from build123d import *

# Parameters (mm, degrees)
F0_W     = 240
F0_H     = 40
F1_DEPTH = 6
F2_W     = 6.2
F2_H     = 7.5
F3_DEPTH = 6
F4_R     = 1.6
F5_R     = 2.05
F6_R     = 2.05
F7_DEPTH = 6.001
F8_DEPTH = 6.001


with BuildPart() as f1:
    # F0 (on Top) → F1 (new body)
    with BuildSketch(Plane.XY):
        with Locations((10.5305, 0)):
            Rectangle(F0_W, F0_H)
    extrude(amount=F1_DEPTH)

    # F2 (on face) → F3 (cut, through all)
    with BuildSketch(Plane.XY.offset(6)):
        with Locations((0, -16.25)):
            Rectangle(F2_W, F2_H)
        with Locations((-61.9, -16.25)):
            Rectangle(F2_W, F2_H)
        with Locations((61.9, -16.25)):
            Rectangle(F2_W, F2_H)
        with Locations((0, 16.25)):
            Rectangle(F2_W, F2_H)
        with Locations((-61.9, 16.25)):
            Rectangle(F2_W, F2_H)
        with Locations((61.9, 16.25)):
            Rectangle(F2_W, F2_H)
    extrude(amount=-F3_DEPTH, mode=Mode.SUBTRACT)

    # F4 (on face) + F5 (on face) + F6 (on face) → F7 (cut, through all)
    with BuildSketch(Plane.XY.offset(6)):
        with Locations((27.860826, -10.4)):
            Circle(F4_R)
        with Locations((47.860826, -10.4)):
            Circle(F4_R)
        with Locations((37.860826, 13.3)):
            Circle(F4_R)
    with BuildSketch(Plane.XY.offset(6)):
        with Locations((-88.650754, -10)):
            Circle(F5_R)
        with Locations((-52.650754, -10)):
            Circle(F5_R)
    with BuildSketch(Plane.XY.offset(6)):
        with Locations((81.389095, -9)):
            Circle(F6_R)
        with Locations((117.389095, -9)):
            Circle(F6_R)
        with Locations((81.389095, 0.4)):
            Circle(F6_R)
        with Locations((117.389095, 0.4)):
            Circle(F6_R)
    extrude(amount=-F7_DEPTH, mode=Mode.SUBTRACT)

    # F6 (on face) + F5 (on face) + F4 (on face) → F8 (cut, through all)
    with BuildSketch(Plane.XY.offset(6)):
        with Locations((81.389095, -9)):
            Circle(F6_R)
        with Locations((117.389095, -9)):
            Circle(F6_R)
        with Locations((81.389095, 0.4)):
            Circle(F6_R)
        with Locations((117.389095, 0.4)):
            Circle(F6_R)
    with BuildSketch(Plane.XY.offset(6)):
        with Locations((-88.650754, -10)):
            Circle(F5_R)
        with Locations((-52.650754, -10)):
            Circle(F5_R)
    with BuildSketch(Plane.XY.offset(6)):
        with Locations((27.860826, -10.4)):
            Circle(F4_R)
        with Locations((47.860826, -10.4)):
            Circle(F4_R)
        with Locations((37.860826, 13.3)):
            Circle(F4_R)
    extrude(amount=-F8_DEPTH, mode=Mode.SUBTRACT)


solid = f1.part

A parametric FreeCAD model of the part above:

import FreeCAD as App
import Part
import Sketcher
from FreeCAD import Vector
Q = App.Units.Quantity


def add_polygon(sketch, points):
    """Adds a closed chain of lines whose ends are joined by coincident constraints."""
    first, n = sketch.GeometryCount, len(points)
    for a, b in zip(points, points[1:] + points[:1]):
        sketch.addGeometry(Part.LineSegment(App.Vector(*a, 0), App.Vector(*b, 0)), False)
    for i in range(n):
        sketch.addConstraint(Sketcher.Constraint("Coincident", first + i, 2, first + (i + 1) % n, 1))

doc = App.newDocument("Part")
body = doc.addObject("PartDesign::Body", "Body")

sketch1 = body.newObject("Sketcher::SketchObject", "Sketch")
sketch1.AttachmentSupport = (doc.getObject("XY_Plane"), [""])
sketch1.MapMode = "FlatFace"
add_polygon(sketch1, [(-109, 20), (-109, -20), (131, -20), (131, 20)])
sketch1.addConstraint([
    Sketcher.Constraint("Vertical", 0),
    Sketcher.Constraint("Horizontal", 1),
    Sketcher.Constraint("Vertical", 2),
    Sketcher.Constraint("Horizontal", 3),
    Sketcher.Constraint("DistanceX", 1, 1, 1, 2, Q("240 mm")),
    Sketcher.Constraint("DistanceY", 0, 2, 0, 1, Q("40 mm")),
    Sketcher.Constraint("DistanceY", 0, 2, -1, 1, Q("20 mm")),
    Sketcher.Constraint("DistanceX", 0, 2, -1, 1, Q("109.4695 mm")),
])
pad1 = body.newObject("PartDesign::Pad", "Pad")
pad1.Profile = sketch1
pad1.Length = 6

sketch2 = body.newObject("Sketcher::SketchObject", "Sketch001")
sketch2.AttachmentSupport = (doc.getObject("XY_Plane"), [""])
sketch2.MapMode = "FlatFace"
sketch2.AttachmentOffset = App.Placement(Vector(0, 0, 6), App.Rotation())
add_polygon(sketch2, [(-3, -12), (-3, -20), (3, -20), (3, -12)])
add_polygon(sketch2, [(-65, -12), (-65, -20), (-59, -20), (-59, -12)])
add_polygon(sketch2, [(59, -12), (59, -20), (65, -20), (65, -12)])
add_polygon(sketch2, [(-3, 20), (-3, 12), (3, 12), (3, 20)])
add_polygon(sketch2, [(-65, 20), (-65, 12), (-59, 12), (-59, 20)])
add_polygon(sketch2, [(59, 20), (59, 12), (65, 12), (65, 20)])
sketch2.addConstraint([
    Sketcher.Constraint("Vertical", 0),
    Sketcher.Constraint("Horizontal", 1),
    Sketcher.Constraint("Vertical", 2),
    Sketcher.Constraint("Horizontal", 3),
    Sketcher.Constraint("Vertical", 4),
    Sketcher.Constraint("Horizontal", 5),
    Sketcher.Constraint("Vertical", 6),
    Sketcher.Constraint("Horizontal", 7),
    Sketcher.Constraint("Vertical", 8),
    Sketcher.Constraint("Horizontal", 9),
    Sketcher.Constraint("Vertical", 10),
    Sketcher.Constraint("Horizontal", 11),
    Sketcher.Constraint("Vertical", 12),
    Sketcher.Constraint("Horizontal", 13),
    Sketcher.Constraint("Vertical", 14),
    Sketcher.Constraint("Horizontal", 15),
    Sketcher.Constraint("Vertical", 16),
    Sketcher.Constraint("Horizontal", 17),
    Sketcher.Constraint("Vertical", 18),
    Sketcher.Constraint("Horizontal", 19),
    Sketcher.Constraint("Vertical", 20),
    Sketcher.Constraint("Horizontal", 21),
    Sketcher.Constraint("Vertical", 22),
    Sketcher.Constraint("Horizontal", 23),
    Sketcher.Constraint("Symmetric", 2, 2, 12, 2, -1, 1),
    Sketcher.Constraint("Symmetric", 0, 2, 14, 2, -1, 1),
    Sketcher.Constraint("Symmetric", 10, 2, 16, 2, -1, 1),
    Sketcher.Constraint("Symmetric", 8, 2, 18, 2, -1, 1),
    Sketcher.Constraint("Symmetric", 6, 2, 20, 2, -1, 1),
    Sketcher.Constraint("Symmetric", 4, 2, 22, 2, -1, 1),
    Sketcher.Constraint("Symmetric", 5, 2, 8, 2, -2),
    Sketcher.Constraint("Symmetric", 7, 2, 10, 2, -2),
    Sketcher.Constraint("Horizontal", 1, 2, 4, 2),
    Sketcher.Constraint("Horizontal", 3, 2, 6, 2),
    Sketcher.Constraint("Vertical", 3, 2, 12, 2),
    Sketcher.Constraint("Equal", 3, 5),
    Sketcher.Constraint("DistanceX", 1, 1, 1, 2, Q("6.2 mm")),
    Sketcher.Constraint("DistanceY", 0, 2, 0, 1, Q("7.5 mm")),
    Sketcher.Constraint("DistanceY", 0, 2, -1, 1, Q("20 mm")),
    Sketcher.Constraint("DistanceX", 4, 2, -1, 1, Q("65 mm")),
])
pocket1 = body.newObject("PartDesign::Pocket", "Pocket")
pocket1.Profile = sketch2
pocket1.Type = "ThroughAll"

sketch3 = body.newObject("Sketcher::SketchObject", "Sketch002")
sketch3.AttachmentSupport = (doc.getObject("XY_Plane"), [""])
sketch3.MapMode = "FlatFace"
sketch3.AttachmentOffset = App.Placement(Vector(0, 0, 6), App.Rotation())
sketch3.addGeometry([
    Part.Circle(Vector(27.9, -10.4, 0), Vector(0, 0, 1), 1.6),
    Part.Circle(Vector(47.9, -10.4, 0), Vector(0, 0, 1), 1.6),
    Part.Circle(Vector(37.9, 13.3, 0), Vector(0, 0, 1), 1.6),
    Part.Circle(Vector(-88.7, -10, 0), Vector(0, 0, 1), 2),
    Part.Circle(Vector(-52.7, -10, 0), Vector(0, 0, 1), 2),
    Part.Circle(Vector(81.4, -9, 0), Vector(0, 0, 1), 2),
    Part.Circle(Vector(117.4, -9, 0), Vector(0, 0, 1), 2),
    Part.Circle(Vector(81.4, 0.4, 0), Vector(0, 0, 1), 2),
    Part.Circle(Vector(117.4, 0.4, 0), Vector(0, 0, 1), 2),
], False)
sketch3.addConstraint([
    Sketcher.Constraint("Equal", 0, 1),
    Sketcher.Constraint("Equal", 1, 2),
    Sketcher.Constraint("Equal", 3, 4),
    Sketcher.Constraint("Equal", 4, 5),
    Sketcher.Constraint("Equal", 5, 6),
    Sketcher.Constraint("Equal", 6, 7),
    Sketcher.Constraint("Equal", 7, 8),
    Sketcher.Constraint("Horizontal", 0, 3, 1, 3),
    Sketcher.Constraint("Horizontal", 3, 3, 4, 3),
    Sketcher.Constraint("Horizontal", 5, 3, 6, 3),
    Sketcher.Constraint("Horizontal", 7, 3, 8, 3),
    Sketcher.Constraint("Vertical", 5, 3, 7, 3),
    Sketcher.Constraint("Vertical", 6, 3, 8, 3),
    Sketcher.Constraint("Diameter", 0, Q("3.2 mm")),
    Sketcher.Constraint("Diameter", 3, Q("4.1 mm")),
    Sketcher.Constraint("DistanceY", 3, 3, -1, 1, Q("10 mm")),
    Sketcher.Constraint("DistanceY", 5, 3, -1, 1, Q("9 mm")),
    Sketcher.Constraint("DistanceX", 0, 3, 1, 3, Q("20 mm")),
    Sketcher.Constraint("DistanceX", 0, 3, 2, 3, Q("10 mm")),
    Sketcher.Constraint("DistanceX", 3, 3, 4, 3, Q("36 mm")),
    Sketcher.Constraint("DistanceX", 5, 3, 6, 3, Q("36 mm")),
    Sketcher.Constraint("DistanceY", 0, 3, -1, 1, Q("10.4 mm")),
    Sketcher.Constraint("DistanceY", -1, 1, 2, 3, Q("13.3 mm")),
    Sketcher.Constraint("DistanceY", -1, 1, 7, 3, Q("0.4 mm")),
    Sketcher.Constraint("DistanceX", 3, 3, 0, 3, Q("116.51158 mm")),
    Sketcher.Constraint("DistanceX", 1, 3, 5, 3, Q("33.528269 mm")),
    Sketcher.Constraint("DistanceX", -1, 1, 0, 3, Q("27.860826 mm")),
])
pocket2 = body.newObject("PartDesign::Pocket", "Pocket001")
pocket2.Profile = sketch3
pocket2.Type = "ThroughAll"

sketch4 = body.newObject("Sketcher::SketchObject", "Sketch003")
sketch4.AttachmentSupport = (doc.getObject("XY_Plane"), [""])
sketch4.MapMode = "FlatFace"
sketch4.AttachmentOffset = App.Placement(Vector(0, 0, 6), App.Rotation())
sketch4.addGeometry([
    Part.Circle(Vector(81.4, -9, 0), Vector(0, 0, 1), 2),
    Part.Circle(Vector(117.4, -9, 0), Vector(0, 0, 1), 2),
    Part.Circle(Vector(81.4, 0.4, 0), Vector(0, 0, 1), 2),
    Part.Circle(Vector(117.4, 0.4, 0), Vector(0, 0, 1), 2),
    Part.Circle(Vector(-88.7, -10, 0), Vector(0, 0, 1), 2),
    Part.Circle(Vector(-52.7, -10, 0), Vector(0, 0, 1), 2),
    Part.Circle(Vector(27.9, -10.4, 0), Vector(0, 0, 1), 1.6),
    Part.Circle(Vector(47.9, -10.4, 0), Vector(0, 0, 1), 1.6),
    Part.Circle(Vector(37.9, 13.3, 0), Vector(0, 0, 1), 1.6),
], False)
sketch4.addConstraint([
    Sketcher.Constraint("Equal", 0, 1),
    Sketcher.Constraint("Equal", 1, 2),
    Sketcher.Constraint("Equal", 2, 3),
    Sketcher.Constraint("Equal", 3, 4),
    Sketcher.Constraint("Equal", 4, 5),
    Sketcher.Constraint("Equal", 6, 7),
    Sketcher.Constraint("Equal", 7, 8),
    Sketcher.Constraint("Horizontal", 0, 3, 1, 3),
    Sketcher.Constraint("Horizontal", 2, 3, 3, 3),
    Sketcher.Constraint("Horizontal", 4, 3, 5, 3),
    Sketcher.Constraint("Horizontal", 6, 3, 7, 3),
    Sketcher.Constraint("Vertical", 0, 3, 2, 3),
    Sketcher.Constraint("Vertical", 1, 3, 3, 3),
    Sketcher.Constraint("Diameter", 0, Q("4.1 mm")),
    Sketcher.Constraint("Diameter", 6, Q("3.2 mm")),
    Sketcher.Constraint("DistanceY", 0, 3, -1, 1, Q("9 mm")),
    Sketcher.Constraint("DistanceY", 4, 3, -1, 1, Q("10 mm")),
    Sketcher.Constraint("DistanceX", 0, 3, 1, 3, Q("36 mm")),
    Sketcher.Constraint("DistanceX", 4, 3, 5, 3, Q("36 mm")),
    Sketcher.Constraint("DistanceX", 6, 3, 7, 3, Q("20 mm")),
    Sketcher.Constraint("DistanceX", 6, 3, 8, 3, Q("10 mm")),
    Sketcher.Constraint("DistanceY", -1, 1, 2, 3, Q("0.4 mm")),
    Sketcher.Constraint("DistanceY", 6, 3, -1, 1, Q("10.4 mm")),
    Sketcher.Constraint("DistanceY", -1, 1, 8, 3, Q("13.3 mm")),
    Sketcher.Constraint("DistanceX", 4, 3, 0, 3, Q("170.039849 mm")),
    Sketcher.Constraint("DistanceX", 6, 3, 0, 3, Q("53.528269 mm")),
    Sketcher.Constraint("DistanceX", -1, 1, 0, 3, Q("81.389095 mm")),
])
pocket3 = body.newObject("PartDesign::Pocket", "Pocket002")
pocket3.Profile = sketch4
pocket3.Type = "ThroughAll"

doc.recompute()
